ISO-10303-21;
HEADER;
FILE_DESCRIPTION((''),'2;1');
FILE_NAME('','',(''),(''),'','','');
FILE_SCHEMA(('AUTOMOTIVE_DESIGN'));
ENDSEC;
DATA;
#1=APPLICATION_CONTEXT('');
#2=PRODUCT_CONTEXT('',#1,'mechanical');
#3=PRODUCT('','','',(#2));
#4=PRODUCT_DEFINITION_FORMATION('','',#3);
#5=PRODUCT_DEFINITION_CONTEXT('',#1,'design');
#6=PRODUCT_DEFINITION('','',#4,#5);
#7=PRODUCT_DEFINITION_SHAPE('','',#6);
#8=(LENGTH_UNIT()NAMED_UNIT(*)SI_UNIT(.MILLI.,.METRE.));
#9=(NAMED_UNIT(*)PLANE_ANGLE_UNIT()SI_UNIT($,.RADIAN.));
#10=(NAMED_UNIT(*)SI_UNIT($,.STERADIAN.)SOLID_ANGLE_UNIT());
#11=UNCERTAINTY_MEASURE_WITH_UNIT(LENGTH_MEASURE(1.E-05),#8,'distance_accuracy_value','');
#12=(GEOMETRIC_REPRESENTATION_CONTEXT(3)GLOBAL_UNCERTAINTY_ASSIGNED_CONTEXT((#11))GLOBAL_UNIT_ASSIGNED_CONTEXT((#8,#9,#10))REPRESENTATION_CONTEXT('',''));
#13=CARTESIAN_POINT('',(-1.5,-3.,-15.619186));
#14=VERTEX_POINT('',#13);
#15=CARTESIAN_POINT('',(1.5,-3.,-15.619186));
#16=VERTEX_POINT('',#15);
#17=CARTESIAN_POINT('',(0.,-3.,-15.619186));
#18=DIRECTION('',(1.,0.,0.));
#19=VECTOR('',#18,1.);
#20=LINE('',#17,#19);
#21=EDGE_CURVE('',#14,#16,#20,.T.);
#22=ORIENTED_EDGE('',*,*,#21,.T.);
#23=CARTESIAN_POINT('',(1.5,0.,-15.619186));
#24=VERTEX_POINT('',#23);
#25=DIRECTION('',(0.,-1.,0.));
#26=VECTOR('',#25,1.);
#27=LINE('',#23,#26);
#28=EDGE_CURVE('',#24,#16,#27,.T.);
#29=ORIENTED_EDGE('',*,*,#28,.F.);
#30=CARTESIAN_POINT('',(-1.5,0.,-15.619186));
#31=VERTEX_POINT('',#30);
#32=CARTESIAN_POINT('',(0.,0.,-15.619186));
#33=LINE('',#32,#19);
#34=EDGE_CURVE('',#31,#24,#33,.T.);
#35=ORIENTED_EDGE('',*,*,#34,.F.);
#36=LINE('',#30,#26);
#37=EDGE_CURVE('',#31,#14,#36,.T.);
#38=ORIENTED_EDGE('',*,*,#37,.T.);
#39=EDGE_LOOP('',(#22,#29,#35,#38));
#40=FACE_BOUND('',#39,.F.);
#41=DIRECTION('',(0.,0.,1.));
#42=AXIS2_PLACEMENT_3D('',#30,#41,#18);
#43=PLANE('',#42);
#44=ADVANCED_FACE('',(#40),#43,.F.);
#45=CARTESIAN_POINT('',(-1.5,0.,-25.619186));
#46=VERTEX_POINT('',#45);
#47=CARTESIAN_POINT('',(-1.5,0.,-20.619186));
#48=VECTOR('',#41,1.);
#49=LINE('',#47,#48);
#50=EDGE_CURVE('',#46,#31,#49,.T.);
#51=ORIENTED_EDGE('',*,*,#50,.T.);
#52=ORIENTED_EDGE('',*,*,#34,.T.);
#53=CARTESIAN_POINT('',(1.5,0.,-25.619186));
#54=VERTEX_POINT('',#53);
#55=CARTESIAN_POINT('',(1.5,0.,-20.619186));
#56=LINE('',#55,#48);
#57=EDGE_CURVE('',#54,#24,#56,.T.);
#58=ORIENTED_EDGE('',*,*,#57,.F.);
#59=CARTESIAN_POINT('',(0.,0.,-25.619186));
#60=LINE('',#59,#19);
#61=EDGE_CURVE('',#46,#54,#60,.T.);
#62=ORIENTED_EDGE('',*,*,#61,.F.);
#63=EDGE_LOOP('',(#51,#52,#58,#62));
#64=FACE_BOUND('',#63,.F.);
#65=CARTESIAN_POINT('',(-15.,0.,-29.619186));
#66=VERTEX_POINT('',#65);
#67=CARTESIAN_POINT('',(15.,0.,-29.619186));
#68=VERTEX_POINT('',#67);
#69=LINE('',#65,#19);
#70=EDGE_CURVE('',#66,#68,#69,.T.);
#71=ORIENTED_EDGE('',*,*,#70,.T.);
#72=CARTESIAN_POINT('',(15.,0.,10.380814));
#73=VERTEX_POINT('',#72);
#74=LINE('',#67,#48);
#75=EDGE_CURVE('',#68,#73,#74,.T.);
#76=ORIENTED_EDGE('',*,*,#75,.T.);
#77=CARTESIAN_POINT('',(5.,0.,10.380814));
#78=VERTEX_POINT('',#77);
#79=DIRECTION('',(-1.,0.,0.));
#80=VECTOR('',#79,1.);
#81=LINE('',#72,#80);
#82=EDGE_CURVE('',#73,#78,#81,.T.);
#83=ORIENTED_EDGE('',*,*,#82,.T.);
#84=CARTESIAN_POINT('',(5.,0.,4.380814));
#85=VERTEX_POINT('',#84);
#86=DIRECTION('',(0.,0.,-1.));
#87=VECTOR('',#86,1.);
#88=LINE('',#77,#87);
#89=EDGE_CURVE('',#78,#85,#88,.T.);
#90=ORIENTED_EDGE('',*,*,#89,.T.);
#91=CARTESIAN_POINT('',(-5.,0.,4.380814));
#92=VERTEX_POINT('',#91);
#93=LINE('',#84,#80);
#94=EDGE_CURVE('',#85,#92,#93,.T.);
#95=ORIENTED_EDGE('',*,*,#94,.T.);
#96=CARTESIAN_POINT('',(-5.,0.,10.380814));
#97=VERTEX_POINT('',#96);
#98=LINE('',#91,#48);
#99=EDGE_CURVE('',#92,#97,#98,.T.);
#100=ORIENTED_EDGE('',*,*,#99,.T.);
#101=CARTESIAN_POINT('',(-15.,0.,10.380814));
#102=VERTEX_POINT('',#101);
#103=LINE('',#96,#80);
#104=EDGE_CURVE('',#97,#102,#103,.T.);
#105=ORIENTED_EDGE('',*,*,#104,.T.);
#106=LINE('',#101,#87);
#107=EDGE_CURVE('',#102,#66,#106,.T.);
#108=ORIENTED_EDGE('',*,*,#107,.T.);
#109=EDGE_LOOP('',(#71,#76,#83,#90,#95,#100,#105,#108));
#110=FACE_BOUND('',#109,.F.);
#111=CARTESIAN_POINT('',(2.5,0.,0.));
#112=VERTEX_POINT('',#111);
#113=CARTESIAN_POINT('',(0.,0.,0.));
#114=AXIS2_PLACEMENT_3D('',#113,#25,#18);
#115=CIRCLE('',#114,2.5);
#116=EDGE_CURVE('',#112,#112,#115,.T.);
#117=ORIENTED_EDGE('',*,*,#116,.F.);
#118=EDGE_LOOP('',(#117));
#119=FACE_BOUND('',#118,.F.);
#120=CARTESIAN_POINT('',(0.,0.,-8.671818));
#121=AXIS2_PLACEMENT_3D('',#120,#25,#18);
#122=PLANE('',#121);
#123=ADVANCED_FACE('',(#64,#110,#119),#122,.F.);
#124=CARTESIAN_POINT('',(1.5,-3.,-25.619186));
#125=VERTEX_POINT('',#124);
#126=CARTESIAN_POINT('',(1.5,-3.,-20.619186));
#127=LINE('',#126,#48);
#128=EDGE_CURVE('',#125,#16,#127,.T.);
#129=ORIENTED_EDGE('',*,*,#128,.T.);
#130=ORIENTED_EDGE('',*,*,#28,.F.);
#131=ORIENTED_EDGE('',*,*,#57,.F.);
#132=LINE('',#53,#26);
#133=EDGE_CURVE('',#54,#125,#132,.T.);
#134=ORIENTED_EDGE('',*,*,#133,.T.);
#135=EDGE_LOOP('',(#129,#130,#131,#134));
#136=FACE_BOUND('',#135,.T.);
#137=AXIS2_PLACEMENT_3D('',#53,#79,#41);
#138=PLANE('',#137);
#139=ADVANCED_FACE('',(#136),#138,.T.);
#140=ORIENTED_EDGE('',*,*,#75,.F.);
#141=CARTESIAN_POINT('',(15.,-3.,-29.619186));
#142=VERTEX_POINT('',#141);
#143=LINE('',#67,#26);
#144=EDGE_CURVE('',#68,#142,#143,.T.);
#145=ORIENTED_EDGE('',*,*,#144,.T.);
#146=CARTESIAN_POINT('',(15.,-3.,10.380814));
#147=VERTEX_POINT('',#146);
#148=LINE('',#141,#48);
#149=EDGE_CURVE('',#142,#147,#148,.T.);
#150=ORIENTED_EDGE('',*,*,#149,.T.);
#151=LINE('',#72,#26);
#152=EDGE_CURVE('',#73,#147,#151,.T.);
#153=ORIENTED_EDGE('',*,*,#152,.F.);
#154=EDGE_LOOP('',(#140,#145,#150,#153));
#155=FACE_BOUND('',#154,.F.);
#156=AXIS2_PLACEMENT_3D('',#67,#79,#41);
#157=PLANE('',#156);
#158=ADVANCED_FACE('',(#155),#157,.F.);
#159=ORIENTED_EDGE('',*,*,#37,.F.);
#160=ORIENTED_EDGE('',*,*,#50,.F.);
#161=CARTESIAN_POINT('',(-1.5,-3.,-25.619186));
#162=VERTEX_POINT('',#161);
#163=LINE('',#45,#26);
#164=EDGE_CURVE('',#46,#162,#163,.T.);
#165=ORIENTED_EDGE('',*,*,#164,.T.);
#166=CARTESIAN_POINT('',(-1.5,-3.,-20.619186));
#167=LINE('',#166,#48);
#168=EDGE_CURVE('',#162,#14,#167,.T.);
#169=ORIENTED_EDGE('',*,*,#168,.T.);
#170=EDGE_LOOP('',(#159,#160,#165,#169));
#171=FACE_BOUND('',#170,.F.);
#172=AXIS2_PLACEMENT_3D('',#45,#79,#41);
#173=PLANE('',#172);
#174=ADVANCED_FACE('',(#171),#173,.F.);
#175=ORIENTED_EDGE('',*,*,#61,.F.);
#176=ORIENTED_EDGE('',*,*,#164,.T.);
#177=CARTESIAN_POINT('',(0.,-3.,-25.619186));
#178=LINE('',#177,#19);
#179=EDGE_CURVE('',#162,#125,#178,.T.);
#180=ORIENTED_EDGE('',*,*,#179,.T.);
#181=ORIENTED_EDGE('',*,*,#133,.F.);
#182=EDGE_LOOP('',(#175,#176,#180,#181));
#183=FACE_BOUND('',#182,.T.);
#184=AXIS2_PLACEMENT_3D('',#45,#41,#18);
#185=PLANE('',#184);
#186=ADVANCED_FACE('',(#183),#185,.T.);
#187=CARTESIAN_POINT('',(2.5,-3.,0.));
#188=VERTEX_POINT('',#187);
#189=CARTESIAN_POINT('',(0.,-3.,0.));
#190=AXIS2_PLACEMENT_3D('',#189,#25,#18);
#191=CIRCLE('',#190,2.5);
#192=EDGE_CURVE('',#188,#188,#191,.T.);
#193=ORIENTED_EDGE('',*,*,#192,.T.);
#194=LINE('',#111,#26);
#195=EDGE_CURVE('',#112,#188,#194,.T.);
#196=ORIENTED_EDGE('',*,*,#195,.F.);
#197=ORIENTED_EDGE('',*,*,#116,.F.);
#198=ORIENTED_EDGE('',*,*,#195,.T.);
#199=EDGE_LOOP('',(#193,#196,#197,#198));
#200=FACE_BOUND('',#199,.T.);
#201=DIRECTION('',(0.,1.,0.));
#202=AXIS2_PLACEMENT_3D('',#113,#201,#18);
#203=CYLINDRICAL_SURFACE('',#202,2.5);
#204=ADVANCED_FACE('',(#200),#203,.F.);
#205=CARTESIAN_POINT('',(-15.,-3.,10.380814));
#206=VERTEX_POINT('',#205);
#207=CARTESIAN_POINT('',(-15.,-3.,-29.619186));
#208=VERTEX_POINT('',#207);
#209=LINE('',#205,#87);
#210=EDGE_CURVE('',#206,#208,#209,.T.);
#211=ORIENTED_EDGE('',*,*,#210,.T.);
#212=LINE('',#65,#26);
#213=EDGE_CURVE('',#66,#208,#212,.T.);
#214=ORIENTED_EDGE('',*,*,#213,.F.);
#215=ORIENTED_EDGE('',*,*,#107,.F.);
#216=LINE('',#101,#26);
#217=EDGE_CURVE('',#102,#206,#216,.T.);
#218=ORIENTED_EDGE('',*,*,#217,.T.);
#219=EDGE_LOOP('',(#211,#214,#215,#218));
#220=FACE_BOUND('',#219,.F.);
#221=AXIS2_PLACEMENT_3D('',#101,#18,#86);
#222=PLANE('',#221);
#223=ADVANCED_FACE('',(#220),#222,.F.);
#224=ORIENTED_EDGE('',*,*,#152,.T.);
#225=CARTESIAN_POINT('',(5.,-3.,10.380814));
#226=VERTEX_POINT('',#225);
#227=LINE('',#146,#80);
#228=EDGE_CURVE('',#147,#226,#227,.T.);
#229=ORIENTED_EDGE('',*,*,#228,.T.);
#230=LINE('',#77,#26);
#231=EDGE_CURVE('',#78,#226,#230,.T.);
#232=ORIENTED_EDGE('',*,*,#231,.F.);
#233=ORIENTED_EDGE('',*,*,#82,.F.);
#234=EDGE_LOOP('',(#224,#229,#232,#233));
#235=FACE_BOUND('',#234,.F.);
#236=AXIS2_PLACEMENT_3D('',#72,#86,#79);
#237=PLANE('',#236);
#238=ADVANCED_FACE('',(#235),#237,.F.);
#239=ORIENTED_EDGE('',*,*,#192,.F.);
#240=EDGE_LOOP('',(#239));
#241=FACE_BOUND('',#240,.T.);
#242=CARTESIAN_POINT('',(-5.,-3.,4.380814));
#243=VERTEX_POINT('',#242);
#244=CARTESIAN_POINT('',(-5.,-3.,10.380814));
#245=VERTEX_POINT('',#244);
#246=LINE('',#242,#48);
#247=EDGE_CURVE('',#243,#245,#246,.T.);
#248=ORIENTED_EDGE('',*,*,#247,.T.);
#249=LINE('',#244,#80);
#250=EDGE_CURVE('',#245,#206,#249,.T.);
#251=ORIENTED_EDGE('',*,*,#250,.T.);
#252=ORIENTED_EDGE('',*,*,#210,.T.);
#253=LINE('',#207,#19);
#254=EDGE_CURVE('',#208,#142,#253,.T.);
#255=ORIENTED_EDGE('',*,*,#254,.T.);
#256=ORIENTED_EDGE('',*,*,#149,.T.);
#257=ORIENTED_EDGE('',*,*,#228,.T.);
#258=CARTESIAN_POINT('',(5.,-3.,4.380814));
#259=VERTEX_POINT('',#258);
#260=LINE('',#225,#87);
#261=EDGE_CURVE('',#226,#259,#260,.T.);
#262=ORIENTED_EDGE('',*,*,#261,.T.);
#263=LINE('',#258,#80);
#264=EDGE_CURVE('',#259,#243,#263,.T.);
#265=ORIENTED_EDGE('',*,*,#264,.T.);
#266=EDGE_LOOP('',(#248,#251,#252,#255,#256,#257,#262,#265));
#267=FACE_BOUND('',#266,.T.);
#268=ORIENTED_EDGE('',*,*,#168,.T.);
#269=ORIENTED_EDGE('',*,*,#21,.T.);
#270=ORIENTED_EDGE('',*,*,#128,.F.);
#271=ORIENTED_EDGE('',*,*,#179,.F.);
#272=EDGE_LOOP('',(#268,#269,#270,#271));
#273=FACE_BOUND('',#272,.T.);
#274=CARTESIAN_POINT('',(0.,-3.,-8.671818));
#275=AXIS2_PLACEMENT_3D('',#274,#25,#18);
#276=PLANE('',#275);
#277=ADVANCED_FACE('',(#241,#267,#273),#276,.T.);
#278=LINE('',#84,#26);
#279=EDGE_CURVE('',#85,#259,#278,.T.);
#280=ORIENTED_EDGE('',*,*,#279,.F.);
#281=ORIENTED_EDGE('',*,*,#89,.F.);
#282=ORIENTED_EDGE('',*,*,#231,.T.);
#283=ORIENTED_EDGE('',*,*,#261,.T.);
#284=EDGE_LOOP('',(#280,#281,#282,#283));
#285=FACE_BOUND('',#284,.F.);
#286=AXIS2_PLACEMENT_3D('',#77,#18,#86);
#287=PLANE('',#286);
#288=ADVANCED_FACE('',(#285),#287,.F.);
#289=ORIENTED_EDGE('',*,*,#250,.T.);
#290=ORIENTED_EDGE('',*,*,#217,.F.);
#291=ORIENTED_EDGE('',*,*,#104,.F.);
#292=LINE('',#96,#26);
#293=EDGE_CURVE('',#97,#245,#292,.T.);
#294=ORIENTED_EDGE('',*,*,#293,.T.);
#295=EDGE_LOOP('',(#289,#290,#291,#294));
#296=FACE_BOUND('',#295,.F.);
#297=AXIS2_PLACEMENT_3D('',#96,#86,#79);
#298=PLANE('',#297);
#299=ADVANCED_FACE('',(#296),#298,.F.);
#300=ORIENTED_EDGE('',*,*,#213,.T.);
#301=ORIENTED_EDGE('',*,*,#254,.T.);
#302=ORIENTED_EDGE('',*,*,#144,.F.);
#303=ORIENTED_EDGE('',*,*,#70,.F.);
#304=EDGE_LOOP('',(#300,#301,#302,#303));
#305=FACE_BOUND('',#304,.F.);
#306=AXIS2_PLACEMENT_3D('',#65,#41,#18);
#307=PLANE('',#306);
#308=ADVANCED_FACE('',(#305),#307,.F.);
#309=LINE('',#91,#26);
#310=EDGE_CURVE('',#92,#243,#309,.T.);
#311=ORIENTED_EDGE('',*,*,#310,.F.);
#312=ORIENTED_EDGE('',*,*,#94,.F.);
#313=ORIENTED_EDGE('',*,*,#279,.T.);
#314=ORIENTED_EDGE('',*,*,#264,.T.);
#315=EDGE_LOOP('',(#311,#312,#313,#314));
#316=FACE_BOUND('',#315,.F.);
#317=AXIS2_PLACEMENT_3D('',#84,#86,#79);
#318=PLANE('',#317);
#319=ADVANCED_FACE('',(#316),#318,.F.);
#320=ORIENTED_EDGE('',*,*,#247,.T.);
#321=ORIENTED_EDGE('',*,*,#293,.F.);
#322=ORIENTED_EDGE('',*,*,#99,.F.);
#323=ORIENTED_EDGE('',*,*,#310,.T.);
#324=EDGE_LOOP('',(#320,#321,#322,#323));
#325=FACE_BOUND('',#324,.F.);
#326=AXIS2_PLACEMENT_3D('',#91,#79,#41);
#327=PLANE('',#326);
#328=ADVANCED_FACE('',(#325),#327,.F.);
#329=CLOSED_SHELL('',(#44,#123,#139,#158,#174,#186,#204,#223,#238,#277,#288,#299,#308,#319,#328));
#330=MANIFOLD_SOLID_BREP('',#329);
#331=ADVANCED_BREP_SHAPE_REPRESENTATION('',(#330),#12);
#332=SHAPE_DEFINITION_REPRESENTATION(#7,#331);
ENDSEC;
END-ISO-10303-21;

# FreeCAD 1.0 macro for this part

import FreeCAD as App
import Part
import Sketcher

V = App.Vector
Q = App.Units.Quantity

doc = App.newDocument("Part")
params = doc.addObject("Spreadsheet::Sheet", "Params")
for row, (alias, value) in enumerate([
    ("sketch1_diameter", "5 mm"),
    ("sketch1_width", "10 mm"),
    ("sketch1_width2", "3 mm"),
    ("sketch1_height", "6 mm"),
    ("sketch1_height2", "40 mm"),
    ("pad1_length", "3 mm"),
], start=1):
    params.set(f"A{row}", alias)
    params.set(f"B{row}", "=" + value)
    params.setAlias(f"B{row}", alias)

body = doc.addObject("PartDesign::Body", "Body")

# Sketch on XZ plane
sketch1 = body.newObject("Sketcher::SketchObject", "Sketch")
sketch1.AttachmentSupport = (doc.getObject("XZ_Plane"), [""])
sketch1.MapMode = "FlatFace"
sketch1.addGeometry([
    Part.LineSegment(V(5, 4.4, 0), V(-5, 4.4, 0)),  # 0
    Part.LineSegment(V(-5, 4.4, 0), V(-5, 10.4, 0)),  # 1
    Part.LineSegment(V(-5, 10.4, 0), V(-15, 10.4, 0)),  # 2
    Part.LineSegment(V(-15, 10.4, 0), V(-15, -29.6, 0)),  # 3
    Part.LineSegment(V(-15, -29.6, 0), V(15, -29.6, 0)),  # 4
    Part.LineSegment(V(15, -29.6, 0), V(15, 10.4, 0)),  # 5
    Part.LineSegment(V(15, 10.4, 0), V(5, 10.4, 0)),  # 6
    Part.LineSegment(V(5, 10.4, 0), V(5, 4.4, 0)),  # 7
    Part.LineSegment(V(1.5, -25.6, 0), V(-1.5, -25.6, 0)),  # 8
    Part.LineSegment(V(-1.5, -25.6, 0), V(-1.5, -15.6, 0)),  # 9
    Part.LineSegment(V(-1.5, -15.6, 0), V(1.5, -15.6, 0)),  # 10
    Part.LineSegment(V(1.5, -15.6, 0), V(1.5, -25.6, 0)),  # 11
    Part.Circle(V(0, 0, 0), V(0, 0, 1), 2.5),  # 12
], False)
sketch1.addConstraint([
    Sketcher.Constraint("Coincident", 0, 2, 1, 1),
    Sketcher.Constraint("Coincident", 1, 2, 2, 1),
    Sketcher.Constraint("Coincident", 2, 2, 3, 1),
    Sketcher.Constraint("Coincident", 3, 2, 4, 1),
    Sketcher.Constraint("Coincident", 4, 2, 5, 1),
    Sketcher.Constraint("Coincident", 5, 2, 6, 1),
    Sketcher.Constraint("Coincident", 6, 2, 7, 1),
    Sketcher.Constraint("Coincident", 7, 2, 0, 1),
    Sketcher.Constraint("Coincident", 8, 2, 9, 1),
    Sketcher.Constraint("Coincident", 9, 2, 10, 1),
    Sketcher.Constraint("Coincident", 10, 2, 11, 1),
    Sketcher.Constraint("Coincident", 11, 2, 8, 1),
    Sketcher.Constraint("Horizontal", 0),
    Sketcher.Constraint("Vertical", 1),
    Sketcher.Constraint("Horizontal", 2),
    Sketcher.Constraint("Vertical", 3),
    Sketcher.Constraint("Horizontal", 4),
    Sketcher.Constraint("Vertical", 5),
    Sketcher.Constraint("Horizontal", 6),
    Sketcher.Constraint("Vertical", 7),
    Sketcher.Constraint("Horizontal", 8),
    Sketcher.Constraint("Vertical", 9),
    Sketcher.Constraint("Horizontal", 10),
    Sketcher.Constraint("Vertical", 11),
    Sketcher.Constraint("Coincident", 12, 3, -1, 1),
    Sketcher.Constraint("Symmetric", 2, 2, 5, 2, -2),
    Sketcher.Constraint("Equal", 0, 2),
    Sketcher.Constraint("Equal", 2, 6),
    Sketcher.Constraint("Equal", 6, 9),
    Sketcher.Constraint("Diameter", 12, Q("5 mm")),
    Sketcher.Constraint("DistanceX", 0, 2, 0, 1, Q("10 mm")),
    Sketcher.Constraint("DistanceX", 8, 2, 8, 1, Q("3 mm")),
    Sketcher.Constraint("DistanceY", 1, 1, 1, 2, Q("6 mm")),
    Sketcher.Constraint("DistanceY", 3, 2, 3, 1, Q("40 mm")),
    Sketcher.Constraint("DistanceY", 3, 2, 8, 2, Q("4 mm")),
    Sketcher.Constraint("DistanceX", 8, 2, -1, 1, Q("1.5 mm")),
    Sketcher.Constraint("DistanceY", -1, 1, 0, 2, Q("4.380814 mm")),
])
sketch1.setExpression("Constraints[29]", "Params.sketch1_diameter")
sketch1.setExpression("Constraints[30]", "Params.sketch1_width")
sketch1.setExpression("Constraints[31]", "Params.sketch1_width2")
sketch1.setExpression("Constraints[32]", "Params.sketch1_height")
sketch1.setExpression("Constraints[33]", "Params.sketch1_height2")
pad1 = body.newObject("PartDesign::Pad", "Pad")
pad1.Profile = sketch1
pad1.setExpression("Length", "Params.pad1_length")

doc.recompute()
